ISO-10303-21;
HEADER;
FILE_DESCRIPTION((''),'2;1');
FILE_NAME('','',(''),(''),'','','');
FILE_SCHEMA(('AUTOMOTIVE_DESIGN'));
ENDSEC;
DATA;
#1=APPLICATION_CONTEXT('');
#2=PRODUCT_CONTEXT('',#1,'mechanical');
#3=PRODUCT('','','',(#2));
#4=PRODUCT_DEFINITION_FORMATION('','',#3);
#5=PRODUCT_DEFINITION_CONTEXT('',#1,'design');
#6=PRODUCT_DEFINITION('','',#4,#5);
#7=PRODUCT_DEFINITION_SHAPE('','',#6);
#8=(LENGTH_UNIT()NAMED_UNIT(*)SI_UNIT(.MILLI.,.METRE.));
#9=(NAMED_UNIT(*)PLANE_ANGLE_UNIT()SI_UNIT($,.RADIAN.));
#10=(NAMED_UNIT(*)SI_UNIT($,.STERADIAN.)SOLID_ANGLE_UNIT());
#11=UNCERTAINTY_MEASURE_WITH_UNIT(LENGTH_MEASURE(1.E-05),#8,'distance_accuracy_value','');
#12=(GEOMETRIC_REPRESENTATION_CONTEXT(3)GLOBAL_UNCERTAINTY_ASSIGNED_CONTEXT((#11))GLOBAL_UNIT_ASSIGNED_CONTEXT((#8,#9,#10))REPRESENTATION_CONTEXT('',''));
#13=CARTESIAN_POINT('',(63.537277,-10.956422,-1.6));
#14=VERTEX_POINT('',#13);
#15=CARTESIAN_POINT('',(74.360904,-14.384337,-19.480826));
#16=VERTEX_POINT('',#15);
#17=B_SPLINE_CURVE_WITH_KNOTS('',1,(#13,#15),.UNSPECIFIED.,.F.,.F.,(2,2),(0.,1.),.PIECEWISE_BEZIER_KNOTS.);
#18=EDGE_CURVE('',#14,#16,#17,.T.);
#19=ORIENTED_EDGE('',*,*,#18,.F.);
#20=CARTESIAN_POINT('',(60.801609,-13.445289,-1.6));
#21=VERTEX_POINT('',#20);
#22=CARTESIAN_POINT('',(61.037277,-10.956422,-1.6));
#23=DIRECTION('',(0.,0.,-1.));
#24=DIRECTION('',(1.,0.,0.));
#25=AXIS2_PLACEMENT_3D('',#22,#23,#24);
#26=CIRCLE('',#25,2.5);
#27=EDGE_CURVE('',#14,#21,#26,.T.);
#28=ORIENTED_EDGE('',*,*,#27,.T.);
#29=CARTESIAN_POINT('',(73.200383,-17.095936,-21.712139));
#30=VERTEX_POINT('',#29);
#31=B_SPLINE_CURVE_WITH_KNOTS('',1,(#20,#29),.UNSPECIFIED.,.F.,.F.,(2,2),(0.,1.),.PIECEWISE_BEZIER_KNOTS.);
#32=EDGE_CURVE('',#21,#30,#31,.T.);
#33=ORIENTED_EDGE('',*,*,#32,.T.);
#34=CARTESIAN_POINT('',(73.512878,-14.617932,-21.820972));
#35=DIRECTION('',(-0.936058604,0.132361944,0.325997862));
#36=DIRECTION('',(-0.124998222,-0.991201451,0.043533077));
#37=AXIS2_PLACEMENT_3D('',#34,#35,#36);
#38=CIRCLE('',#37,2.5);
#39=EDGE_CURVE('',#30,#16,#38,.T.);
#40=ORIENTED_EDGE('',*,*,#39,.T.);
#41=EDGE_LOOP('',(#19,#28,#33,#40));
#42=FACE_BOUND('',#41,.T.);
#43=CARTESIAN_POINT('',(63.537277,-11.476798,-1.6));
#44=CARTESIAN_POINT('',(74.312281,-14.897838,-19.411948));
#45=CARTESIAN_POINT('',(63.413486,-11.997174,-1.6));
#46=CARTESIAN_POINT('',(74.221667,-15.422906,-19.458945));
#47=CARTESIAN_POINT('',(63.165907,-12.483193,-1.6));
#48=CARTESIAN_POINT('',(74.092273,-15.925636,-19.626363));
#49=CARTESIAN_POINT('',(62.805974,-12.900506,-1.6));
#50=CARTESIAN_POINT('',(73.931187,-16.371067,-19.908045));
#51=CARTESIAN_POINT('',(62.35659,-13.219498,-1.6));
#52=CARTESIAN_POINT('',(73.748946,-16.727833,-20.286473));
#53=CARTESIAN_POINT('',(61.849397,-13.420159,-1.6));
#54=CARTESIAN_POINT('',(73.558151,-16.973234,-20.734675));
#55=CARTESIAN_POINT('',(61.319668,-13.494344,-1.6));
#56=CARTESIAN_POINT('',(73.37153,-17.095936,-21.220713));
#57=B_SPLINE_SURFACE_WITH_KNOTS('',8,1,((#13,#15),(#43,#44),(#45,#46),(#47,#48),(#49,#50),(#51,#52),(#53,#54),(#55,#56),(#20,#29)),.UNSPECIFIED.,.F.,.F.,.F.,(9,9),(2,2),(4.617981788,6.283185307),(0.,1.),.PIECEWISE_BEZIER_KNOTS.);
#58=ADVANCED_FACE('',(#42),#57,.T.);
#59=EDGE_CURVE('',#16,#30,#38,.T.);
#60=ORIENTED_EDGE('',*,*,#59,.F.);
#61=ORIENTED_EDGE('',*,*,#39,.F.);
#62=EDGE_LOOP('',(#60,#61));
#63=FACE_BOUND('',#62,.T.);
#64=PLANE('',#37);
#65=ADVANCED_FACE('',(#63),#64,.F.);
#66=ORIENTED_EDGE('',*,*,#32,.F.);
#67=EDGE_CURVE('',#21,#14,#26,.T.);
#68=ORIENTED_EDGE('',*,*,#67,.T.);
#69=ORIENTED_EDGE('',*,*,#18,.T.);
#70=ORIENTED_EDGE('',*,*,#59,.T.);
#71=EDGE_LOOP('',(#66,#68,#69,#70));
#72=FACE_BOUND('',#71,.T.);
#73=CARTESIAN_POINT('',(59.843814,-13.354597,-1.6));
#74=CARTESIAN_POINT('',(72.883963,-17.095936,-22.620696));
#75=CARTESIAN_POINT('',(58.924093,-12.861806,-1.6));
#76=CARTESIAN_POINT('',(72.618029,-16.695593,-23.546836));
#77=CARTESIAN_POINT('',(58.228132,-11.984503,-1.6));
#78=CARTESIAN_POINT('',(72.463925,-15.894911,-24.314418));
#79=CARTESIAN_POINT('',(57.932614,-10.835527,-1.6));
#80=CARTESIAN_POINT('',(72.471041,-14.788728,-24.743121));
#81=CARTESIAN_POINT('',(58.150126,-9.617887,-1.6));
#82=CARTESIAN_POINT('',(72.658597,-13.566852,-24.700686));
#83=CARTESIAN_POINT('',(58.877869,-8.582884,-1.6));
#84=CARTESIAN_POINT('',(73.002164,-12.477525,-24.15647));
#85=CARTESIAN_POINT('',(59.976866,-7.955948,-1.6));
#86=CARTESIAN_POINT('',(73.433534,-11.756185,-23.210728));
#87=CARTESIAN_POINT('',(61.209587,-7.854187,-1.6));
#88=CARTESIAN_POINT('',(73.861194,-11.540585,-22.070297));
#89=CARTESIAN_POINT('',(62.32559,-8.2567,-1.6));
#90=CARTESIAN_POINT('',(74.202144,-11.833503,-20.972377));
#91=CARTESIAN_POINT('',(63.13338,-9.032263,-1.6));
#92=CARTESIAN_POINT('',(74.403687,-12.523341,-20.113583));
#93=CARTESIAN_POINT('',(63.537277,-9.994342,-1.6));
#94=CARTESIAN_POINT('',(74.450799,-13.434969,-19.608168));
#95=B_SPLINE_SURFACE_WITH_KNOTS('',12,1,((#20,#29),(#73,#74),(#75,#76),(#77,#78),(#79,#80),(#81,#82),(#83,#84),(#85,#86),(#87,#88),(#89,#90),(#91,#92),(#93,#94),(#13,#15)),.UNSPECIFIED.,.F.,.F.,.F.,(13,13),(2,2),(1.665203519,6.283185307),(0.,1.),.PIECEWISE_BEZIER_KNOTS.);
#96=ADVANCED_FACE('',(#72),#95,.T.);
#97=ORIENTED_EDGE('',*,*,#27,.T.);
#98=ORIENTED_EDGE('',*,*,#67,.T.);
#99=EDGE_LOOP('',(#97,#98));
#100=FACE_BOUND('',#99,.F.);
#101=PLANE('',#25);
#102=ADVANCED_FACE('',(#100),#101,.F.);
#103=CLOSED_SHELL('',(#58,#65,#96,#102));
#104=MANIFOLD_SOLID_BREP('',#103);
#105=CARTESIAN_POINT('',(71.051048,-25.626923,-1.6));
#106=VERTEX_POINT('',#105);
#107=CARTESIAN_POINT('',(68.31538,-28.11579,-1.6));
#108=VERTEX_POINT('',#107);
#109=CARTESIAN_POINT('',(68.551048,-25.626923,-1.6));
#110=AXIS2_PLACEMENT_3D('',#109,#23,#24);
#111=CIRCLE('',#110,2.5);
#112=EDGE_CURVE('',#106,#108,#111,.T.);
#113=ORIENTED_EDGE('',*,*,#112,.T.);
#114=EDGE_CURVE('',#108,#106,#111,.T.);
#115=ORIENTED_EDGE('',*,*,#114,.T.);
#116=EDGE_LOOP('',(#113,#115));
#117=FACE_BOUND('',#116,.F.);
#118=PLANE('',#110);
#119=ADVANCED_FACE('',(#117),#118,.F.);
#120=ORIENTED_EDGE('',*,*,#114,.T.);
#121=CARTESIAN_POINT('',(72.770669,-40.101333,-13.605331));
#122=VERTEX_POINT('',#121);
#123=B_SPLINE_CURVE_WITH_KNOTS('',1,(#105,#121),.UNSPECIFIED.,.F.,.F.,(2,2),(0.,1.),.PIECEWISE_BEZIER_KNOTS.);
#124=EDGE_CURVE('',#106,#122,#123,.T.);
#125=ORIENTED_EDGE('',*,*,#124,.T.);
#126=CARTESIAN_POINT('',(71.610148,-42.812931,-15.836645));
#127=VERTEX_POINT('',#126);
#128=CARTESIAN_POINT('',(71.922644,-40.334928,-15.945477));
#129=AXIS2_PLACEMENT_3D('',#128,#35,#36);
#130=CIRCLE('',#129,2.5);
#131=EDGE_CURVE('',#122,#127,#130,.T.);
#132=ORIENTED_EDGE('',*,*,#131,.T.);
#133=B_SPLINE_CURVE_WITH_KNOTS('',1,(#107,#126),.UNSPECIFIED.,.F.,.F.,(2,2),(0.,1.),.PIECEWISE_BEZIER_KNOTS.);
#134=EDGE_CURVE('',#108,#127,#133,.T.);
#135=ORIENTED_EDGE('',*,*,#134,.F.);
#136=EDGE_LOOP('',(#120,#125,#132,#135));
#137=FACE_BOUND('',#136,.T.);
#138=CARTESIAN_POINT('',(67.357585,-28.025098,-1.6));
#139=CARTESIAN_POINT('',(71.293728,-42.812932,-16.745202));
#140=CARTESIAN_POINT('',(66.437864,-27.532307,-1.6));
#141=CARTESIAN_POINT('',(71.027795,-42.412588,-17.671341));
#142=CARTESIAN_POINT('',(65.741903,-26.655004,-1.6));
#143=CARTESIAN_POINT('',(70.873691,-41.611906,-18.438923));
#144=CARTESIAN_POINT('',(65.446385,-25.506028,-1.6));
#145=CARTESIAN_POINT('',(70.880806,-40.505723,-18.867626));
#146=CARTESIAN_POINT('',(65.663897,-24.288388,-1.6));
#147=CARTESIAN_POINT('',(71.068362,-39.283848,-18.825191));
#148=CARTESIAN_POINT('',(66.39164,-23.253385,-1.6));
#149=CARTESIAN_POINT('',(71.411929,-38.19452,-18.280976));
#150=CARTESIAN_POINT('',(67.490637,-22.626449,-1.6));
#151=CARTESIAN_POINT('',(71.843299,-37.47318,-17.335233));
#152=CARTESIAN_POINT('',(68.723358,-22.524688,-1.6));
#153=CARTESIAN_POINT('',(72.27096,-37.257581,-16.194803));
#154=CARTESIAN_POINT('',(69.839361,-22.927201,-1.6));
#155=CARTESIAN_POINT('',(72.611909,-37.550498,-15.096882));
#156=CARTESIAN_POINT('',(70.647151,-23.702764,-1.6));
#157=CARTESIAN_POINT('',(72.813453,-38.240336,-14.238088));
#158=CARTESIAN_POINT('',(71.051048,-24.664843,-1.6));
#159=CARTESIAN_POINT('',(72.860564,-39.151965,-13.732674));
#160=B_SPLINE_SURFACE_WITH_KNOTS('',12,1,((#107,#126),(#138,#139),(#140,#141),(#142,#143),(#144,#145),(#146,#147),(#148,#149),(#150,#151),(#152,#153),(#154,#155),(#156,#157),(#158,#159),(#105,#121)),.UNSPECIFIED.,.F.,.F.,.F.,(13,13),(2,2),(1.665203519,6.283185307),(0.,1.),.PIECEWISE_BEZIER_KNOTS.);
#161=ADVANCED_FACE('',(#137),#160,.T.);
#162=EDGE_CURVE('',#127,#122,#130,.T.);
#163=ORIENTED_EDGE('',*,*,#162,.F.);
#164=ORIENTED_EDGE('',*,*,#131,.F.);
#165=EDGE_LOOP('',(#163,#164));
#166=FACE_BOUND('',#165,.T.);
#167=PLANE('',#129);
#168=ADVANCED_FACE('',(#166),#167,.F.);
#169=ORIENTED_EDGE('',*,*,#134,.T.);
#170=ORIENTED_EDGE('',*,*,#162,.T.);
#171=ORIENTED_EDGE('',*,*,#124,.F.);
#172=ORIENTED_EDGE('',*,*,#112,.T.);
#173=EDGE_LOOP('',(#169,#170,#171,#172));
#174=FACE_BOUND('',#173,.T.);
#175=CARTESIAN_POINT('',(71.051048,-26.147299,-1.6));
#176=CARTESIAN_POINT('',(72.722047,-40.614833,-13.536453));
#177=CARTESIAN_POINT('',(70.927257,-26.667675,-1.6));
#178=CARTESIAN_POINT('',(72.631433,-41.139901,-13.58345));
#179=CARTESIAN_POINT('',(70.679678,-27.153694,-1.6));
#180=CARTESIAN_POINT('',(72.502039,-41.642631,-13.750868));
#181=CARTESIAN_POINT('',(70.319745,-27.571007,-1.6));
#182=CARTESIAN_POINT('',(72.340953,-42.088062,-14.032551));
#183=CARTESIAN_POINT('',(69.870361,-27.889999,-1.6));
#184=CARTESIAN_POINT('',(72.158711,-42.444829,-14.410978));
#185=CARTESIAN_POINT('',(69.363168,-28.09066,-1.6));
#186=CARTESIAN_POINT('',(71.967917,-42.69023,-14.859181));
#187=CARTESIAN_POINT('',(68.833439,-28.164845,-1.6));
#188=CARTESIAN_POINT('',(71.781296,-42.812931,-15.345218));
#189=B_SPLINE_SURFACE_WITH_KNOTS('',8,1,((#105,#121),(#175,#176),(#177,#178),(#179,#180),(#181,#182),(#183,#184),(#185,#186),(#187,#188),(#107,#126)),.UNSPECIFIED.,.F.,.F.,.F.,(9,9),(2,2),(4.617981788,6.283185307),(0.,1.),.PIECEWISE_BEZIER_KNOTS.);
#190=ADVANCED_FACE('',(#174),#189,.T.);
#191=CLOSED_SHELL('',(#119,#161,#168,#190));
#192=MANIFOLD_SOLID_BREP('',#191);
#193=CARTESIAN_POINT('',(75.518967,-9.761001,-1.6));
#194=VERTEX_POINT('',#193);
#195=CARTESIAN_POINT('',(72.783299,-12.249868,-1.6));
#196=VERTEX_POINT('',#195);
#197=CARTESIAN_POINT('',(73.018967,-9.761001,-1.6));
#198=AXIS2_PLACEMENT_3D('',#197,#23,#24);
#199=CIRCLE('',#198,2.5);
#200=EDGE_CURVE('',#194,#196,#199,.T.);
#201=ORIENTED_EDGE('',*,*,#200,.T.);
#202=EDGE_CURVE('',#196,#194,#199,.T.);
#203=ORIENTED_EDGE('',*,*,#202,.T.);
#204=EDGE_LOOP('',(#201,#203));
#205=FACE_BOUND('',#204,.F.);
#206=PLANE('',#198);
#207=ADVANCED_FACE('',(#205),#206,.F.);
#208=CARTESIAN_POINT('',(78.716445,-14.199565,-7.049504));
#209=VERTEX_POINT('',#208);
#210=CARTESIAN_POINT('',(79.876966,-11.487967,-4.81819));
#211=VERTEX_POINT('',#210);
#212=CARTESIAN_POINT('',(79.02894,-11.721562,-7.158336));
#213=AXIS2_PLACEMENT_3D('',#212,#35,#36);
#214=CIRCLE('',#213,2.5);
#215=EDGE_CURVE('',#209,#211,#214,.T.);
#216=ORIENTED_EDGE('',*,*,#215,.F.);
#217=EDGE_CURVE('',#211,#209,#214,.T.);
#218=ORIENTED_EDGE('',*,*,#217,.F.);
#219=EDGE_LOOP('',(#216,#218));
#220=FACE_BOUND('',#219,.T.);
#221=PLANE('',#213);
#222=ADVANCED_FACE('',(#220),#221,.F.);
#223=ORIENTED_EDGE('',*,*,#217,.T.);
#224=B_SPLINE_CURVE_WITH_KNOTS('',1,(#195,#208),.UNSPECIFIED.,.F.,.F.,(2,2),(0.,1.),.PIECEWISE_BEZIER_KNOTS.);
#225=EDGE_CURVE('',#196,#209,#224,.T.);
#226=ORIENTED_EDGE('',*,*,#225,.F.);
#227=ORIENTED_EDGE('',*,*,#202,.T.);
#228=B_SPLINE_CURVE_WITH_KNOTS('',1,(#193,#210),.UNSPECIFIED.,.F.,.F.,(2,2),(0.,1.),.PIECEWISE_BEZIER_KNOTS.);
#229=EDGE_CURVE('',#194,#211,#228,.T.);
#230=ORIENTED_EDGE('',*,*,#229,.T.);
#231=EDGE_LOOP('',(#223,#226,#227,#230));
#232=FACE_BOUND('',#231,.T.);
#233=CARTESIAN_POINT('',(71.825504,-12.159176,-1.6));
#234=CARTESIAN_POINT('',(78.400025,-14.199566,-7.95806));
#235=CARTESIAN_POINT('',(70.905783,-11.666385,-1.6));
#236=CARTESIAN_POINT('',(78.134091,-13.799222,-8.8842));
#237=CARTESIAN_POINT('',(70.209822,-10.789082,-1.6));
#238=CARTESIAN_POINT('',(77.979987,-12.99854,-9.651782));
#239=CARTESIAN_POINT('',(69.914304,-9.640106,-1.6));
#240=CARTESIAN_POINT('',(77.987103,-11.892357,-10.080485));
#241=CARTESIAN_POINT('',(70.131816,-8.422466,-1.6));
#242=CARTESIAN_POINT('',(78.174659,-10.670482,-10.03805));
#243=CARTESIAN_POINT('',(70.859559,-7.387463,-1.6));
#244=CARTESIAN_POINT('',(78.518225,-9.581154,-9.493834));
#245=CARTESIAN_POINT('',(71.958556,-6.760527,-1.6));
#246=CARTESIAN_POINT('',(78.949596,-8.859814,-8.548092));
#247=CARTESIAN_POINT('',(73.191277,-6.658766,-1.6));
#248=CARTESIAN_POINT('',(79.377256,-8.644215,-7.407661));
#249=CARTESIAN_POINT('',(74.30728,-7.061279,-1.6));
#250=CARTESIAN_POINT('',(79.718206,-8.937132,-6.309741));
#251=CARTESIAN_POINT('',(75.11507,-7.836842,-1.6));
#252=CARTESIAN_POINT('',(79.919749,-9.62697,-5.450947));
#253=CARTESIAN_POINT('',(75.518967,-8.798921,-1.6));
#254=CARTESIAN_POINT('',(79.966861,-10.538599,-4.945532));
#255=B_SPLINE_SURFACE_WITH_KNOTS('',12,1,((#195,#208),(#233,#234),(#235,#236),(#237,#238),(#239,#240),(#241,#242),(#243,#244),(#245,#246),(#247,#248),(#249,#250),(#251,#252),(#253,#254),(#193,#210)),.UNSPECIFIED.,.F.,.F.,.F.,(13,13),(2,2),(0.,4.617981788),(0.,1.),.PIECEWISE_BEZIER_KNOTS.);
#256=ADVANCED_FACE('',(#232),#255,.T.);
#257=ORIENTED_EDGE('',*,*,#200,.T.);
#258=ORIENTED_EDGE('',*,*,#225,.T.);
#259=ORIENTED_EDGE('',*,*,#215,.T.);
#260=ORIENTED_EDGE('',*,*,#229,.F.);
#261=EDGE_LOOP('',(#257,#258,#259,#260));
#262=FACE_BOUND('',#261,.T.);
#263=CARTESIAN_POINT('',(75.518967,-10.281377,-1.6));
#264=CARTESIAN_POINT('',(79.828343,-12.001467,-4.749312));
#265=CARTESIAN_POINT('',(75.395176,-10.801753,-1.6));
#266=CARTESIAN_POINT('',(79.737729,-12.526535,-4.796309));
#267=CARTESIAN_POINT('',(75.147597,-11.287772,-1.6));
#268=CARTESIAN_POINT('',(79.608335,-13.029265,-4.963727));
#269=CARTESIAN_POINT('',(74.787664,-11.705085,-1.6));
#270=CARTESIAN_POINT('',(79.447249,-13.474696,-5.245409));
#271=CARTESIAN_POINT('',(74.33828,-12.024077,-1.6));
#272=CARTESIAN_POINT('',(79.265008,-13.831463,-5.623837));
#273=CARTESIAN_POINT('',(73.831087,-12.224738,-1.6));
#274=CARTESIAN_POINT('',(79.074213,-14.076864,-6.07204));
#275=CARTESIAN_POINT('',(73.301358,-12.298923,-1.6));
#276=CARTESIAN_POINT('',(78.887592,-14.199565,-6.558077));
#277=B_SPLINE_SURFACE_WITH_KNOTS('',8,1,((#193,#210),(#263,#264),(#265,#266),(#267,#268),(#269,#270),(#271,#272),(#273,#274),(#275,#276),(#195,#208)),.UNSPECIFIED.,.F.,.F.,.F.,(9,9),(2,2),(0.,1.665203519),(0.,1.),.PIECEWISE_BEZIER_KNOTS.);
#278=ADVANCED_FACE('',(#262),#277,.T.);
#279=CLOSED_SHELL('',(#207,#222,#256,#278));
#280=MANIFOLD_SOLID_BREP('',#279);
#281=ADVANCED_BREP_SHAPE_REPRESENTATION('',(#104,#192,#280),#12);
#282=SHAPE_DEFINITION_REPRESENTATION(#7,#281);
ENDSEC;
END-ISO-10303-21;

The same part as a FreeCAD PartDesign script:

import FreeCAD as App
import Part
import Sketcher

V = App.Vector

doc = App.newDocument("Part")
body = doc.addObject("PartDesign::Body", "Body")
body.AllowCompound = True

sketch1 = body.newObject("Sketcher::SketchObject", "Sketch")
sketch1.AttachmentSupport = (doc.getObject("XY_Plane"), [""])
sketch1.MapMode = "FlatFace"
sketch1.AttachmentOffset = App.Placement(V(0, 0, -1.6), App.Rotation())
sketch1.addGeometry(Part.Circle(V(61, -11, 0), V(0, 0, 1), 2.5), False)
sketch1.addConstraint(Sketcher.Constraint("Diameter", 0, 5.0))
sketch1.addConstraint(Sketcher.Constraint("DistanceX", -1, 1, 0, 3, 61.037277))
sketch1.addConstraint(Sketcher.Constraint("DistanceY", 0, 3, -1, 1, 10.956422))

sketch2 = body.newObject("Sketcher::SketchObject", "Sketch001")
sketch2.Placement = App.Placement(V(72.882287, -10.305781, -25.382453), App.Rotation(V(-0.124998222, -0.991201451, 0.043533077), V(0.328891677, 0.000000358, 0.944367654), V(-0.936058604, 0.132361944, 0.325997862), "ZXY"))
sketch2.addGeometry(Part.Circle(V(4.4, 3.6, 0), V(0, 0, 1), 2.5), False)
sketch2.addConstraint(Sketcher.Constraint("Diameter", 0, 5.0))
sketch2.addConstraint(Sketcher.Constraint("DistanceX", -1, 1, 0, 3, 4.35043))
sketch2.addConstraint(Sketcher.Constraint("DistanceY", -1, 1, 0, 3, 3.570742))

additiveloft = body.newObject("PartDesign::AdditiveLoft", "AdditiveLoft")
additiveloft.Profile = sketch1
additiveloft.Sections = [sketch2]

sketch3 = body.newObject("Sketcher::SketchObject", "Sketch002")
sketch3.AttachmentSupport = (doc.getObject("XY_Plane"), [""])
sketch3.MapMode = "FlatFace"
sketch3.AttachmentOffset = App.Placement(V(0, 0, -1.6), App.Rotation())
sketch3.addGeometry(Part.Circle(V(68.6, -25.6, 0), V(0, 0, 1), 2.5), False)
sketch3.addConstraint(Sketcher.Constraint("Diameter", 0, 5.0))
sketch3.addConstraint(Sketcher.Constraint("DistanceX", -1, 1, 0, 3, 68.551048))
sketch3.addConstraint(Sketcher.Constraint("DistanceY", 0, 3, -1, 1, 25.626923))

sketch4 = body.newObject("Sketcher::SketchObject", "Sketch003")
sketch4.Placement = App.Placement(V(72.882287, -10.305781, -25.382453), App.Rotation(V(-0.124998222, -0.991201451, 0.043533077), V(0.328891677, 0.000000358, 0.944367654), V(-0.936058604, 0.132361944, 0.325997862), "ZXY"))
sketch4.addGeometry(Part.Circle(V(30.3, 8.6, 0), V(0, 0, 1), 2.5), False)
sketch4.addConstraint(Sketcher.Constraint("Diameter", 0, 5.0))
sketch4.addConstraint(Sketcher.Constraint("DistanceX", -1, 1, 0, 3, 30.295708))
sketch4.addConstraint(Sketcher.Constraint("DistanceY", -1, 1, 0, 3, 8.596345))

additiveloft2 = body.newObject("PartDesign::AdditiveLoft", "AdditiveLoft001")
additiveloft2.Profile = sketch3
additiveloft2.Sections = [sketch4]

sketch5 = body.newObject("Sketcher::SketchObject", "Sketch004")
sketch5.AttachmentSupport = (doc.getObject("XY_Plane"), [""])
sketch5.MapMode = "FlatFace"
sketch5.AttachmentOffset = App.Placement(V(0, 0, -1.6), App.Rotation())
sketch5.addGeometry(Part.Circle(V(73, -9.8, 0), V(0, 0, 1), 2.5), False)
sketch5.addConstraint(Sketcher.Constraint("Diameter", 0, 5.0))
sketch5.addConstraint(Sketcher.Constraint("DistanceY", 0, 3, -1, 1, 9.761001))
sketch5.addConstraint(Sketcher.Constraint("DistanceX", -1, 1, 0, 3, 73.018967))

sketch6 = body.newObject("Sketcher::SketchObject", "Sketch005")
sketch6.Placement = App.Placement(V(72.882287, -10.305781, -25.382453), App.Rotation(V(-0.124998222, -0.991201451, 0.043533077), V(0.328891677, 0.000000358, 0.944367654), V(-0.936058604, 0.132361944, 0.325997862), "ZXY"))
sketch6.addGeometry(Part.Circle(V(1.4, 19.2, 0), V(0, 0, 1), 2.5), False)
sketch6.addConstraint(Sketcher.Constraint("Diameter", 0, 5.0))
sketch6.addConstraint(Sketcher.Constraint("DistanceY", -1, 1, 0, 3, 19.231849))
sketch6.addConstraint(Sketcher.Constraint("DistanceX", -1, 1, 0, 3, 1.428355))

additiveloft3 = body.newObject("PartDesign::AdditiveLoft", "AdditiveLoft002")
additiveloft3.Profile = sketch5
additiveloft3.Sections = [sketch6]

doc.recompute()
